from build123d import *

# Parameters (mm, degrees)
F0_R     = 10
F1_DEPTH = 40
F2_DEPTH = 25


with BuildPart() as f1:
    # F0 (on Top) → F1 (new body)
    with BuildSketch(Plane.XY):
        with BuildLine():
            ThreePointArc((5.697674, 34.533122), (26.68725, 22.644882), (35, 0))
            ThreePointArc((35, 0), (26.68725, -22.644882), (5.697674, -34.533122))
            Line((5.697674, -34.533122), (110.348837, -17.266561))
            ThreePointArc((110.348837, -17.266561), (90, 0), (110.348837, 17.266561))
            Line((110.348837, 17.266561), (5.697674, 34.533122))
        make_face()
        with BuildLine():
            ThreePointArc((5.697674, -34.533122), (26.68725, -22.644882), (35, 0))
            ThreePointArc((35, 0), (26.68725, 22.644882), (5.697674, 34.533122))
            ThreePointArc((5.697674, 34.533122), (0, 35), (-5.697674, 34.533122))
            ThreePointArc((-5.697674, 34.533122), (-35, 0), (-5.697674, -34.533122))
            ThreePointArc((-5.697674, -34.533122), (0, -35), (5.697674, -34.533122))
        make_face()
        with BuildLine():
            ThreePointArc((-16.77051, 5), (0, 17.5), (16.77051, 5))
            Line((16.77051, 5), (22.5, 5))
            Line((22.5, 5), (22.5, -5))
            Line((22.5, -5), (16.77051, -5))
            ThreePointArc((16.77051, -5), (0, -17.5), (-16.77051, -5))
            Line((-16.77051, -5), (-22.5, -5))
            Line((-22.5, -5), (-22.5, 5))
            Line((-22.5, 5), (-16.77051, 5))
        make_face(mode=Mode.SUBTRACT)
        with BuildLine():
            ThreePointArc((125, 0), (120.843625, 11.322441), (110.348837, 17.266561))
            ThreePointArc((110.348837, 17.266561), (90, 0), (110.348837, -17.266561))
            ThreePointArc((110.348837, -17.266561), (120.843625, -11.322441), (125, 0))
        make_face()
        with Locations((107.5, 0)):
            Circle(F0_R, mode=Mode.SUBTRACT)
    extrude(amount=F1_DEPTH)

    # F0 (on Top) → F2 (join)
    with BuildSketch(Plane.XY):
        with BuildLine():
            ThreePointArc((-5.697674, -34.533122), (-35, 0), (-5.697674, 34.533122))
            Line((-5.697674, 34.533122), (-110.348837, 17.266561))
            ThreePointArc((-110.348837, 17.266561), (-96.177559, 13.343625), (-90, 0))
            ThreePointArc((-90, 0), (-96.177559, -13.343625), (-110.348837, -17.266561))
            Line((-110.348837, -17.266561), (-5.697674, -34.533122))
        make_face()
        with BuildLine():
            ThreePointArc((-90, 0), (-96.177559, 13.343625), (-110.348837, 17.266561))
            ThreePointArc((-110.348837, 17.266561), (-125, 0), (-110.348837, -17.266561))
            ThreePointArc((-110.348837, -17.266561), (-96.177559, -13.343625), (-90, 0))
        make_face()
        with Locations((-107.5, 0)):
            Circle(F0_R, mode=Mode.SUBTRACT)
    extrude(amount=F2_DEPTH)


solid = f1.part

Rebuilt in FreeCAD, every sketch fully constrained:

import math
import FreeCAD as App
import Part
import Sketcher
from FreeCAD import Vector
Q = App.Units.Quantity

doc = App.newDocument("Part")
params = doc.addObject("Spreadsheet::Sheet", "Params")
for row, (alias, value) in enumerate([
    ("sketch1_diameter", "20 mm"),
    ("sketch1_radius", "35 mm"),
    ("sketch1_radius2", "17.5 mm"),
    ("sketch1_height", "10 mm"),
    ("pad1_length", "40 mm"),
    ("sketch2_diameter", "20 mm"),
    ("sketch2_radius", "35 mm"),
    ("sketch2_radius2", "17.5 mm"),
    ("pad2_length", "25 mm"),
], start=1):
    params.set(f"A{row}", alias)
    params.set(f"B{row}", "=" + value)
    params.setAlias(f"B{row}", alias)

body = doc.addObject("PartDesign::Body", "Body")

sketch1 = body.newObject("Sketcher::SketchObject", "Sketch")
sketch1.AttachmentSupport = (doc.getObject("XY_Plane"), [""])
sketch1.MapMode = "FlatFace"
sketch1.addGeometry([
    Part.LineSegment(Vector(6, -35, 0), Vector(110, -17, 0)),
    Part.ArcOfCircle(Part.Circle(Vector(107, 0, 0), Vector(0, 0, 1), 18), math.radians(-81), math.radians(0)),
    Part.ArcOfCircle(Part.Circle(Vector(107, 0, 0), Vector(0, 0, 1), 18), math.radians(0), math.radians(81)),
    Part.LineSegment(Vector(110, 17, 0), Vector(6, 35, 0)),
    Part.ArcOfCircle(Part.Circle(Vector(0, 0, 0), Vector(0, 0, 1), 35), math.radians(80.63), math.radians(99.37)),
    Part.ArcOfCircle(Part.Circle(Vector(0, 0, 0), Vector(0, 0, 1), 35), math.radians(99), math.radians(261)),
    Part.ArcOfCircle(Part.Circle(Vector(0, 0, 0), Vector(0, 0, 1), 35), math.radians(-99.37), math.radians(-80.63)),
    Part.LineSegment(Vector(-22, 5, 0), Vector(-17, 5, 0)),
    Part.ArcOfCircle(Part.Circle(Vector(0, 0, 0), Vector(0, 0, 1), 18), math.radians(17), math.radians(163)),
    Part.LineSegment(Vector(17, 5, 0), Vector(22, 5, 0)),
    Part.LineSegment(Vector(22, 5, 0), Vector(22, -5, 0)),
    Part.LineSegment(Vector(22, -5, 0), Vector(17, -5, 0)),
    Part.ArcOfCircle(Part.Circle(Vector(0, 0, 0), Vector(0, 0, 1), 18), math.radians(-163), math.radians(-17)),
    Part.LineSegment(Vector(-17, -5, 0), Vector(-22, -5, 0)),
    Part.LineSegment(Vector(-22, -5, 0), Vector(-22, 5, 0)),
    Part.Circle(Vector(108, 0, 0), Vector(0, 0, 1), 10),
], False)
sketch1.addConstraint([
    Sketcher.Constraint("Tangent", 0, 2, 1, 1),
    Sketcher.Constraint("Tangent", 1, 2, 2, 1),
    Sketcher.Constraint("Tangent", 2, 2, 3, 1),
    Sketcher.Constraint("Tangent", 3, 2, 4, 1),
    Sketcher.Constraint("Tangent", 4, 2, 5, 1),
    Sketcher.Constraint("Tangent", 5, 2, 6, 1),
    Sketcher.Constraint("Tangent", 6, 2, 0, 1),
    Sketcher.Constraint("Coincident", 7, 2, 8, 2),
    Sketcher.Constraint("Coincident", 8, 1, 9, 1),
    Sketcher.Constraint("Coincident", 9, 2, 10, 1),
    Sketcher.Constraint("Coincident", 10, 2, 11, 1),
    Sketcher.Constraint("Coincident", 11, 2, 12, 2),
    Sketcher.Constraint("Coincident", 12, 1, 13, 1),
    Sketcher.Constraint("Coincident", 13, 2, 14, 1),
    Sketcher.Constraint("Coincident", 14, 2, 7, 1),
    Sketcher.Constraint("Horizontal", 7),
    Sketcher.Constraint("Horizontal", 9),
    Sketcher.Constraint("Vertical", 10),
    Sketcher.Constraint("Horizontal", 11),
    Sketcher.Constraint("Horizontal", 13),
    Sketcher.Constraint("Vertical", 14),
    Sketcher.Constraint("Coincident", 4, 3, -1, 1),
    Sketcher.Constraint("Coincident", 6, 3, -1, 1),
    Sketcher.Constraint("Coincident", 8, 3, -1, 1),
    Sketcher.Constraint("Coincident", 12, 3, -1, 1),
    Sketcher.Constraint("Coincident", 15, 3, 1, 3),
    Sketcher.Constraint("Equal", 1, 2),
    Sketcher.Constraint("Equal", 2, 8),
    Sketcher.Constraint("Equal", 8, 12),
    Sketcher.Constraint("Symmetric", 9, 2, 13, 2, -1, 1),
    Sketcher.Constraint("PointOnObject", 1, 3, -1),
    Sketcher.Constraint("PointOnObject", 1, 2, -1),
    Sketcher.Constraint("Horizontal", 3, 2, 4, 2),
    Sketcher.Constraint("Horizontal", 5, 2, 6, 2),
    Sketcher.Constraint("Horizontal", 7, 2, 8, 1),
    Sketcher.Constraint("Horizontal", 11, 2, 12, 1),
    Sketcher.Constraint("Diameter", 15, Q("20 mm")),
    Sketcher.Constraint("Radius", 5, Q("35 mm")),
    Sketcher.Constraint("Radius", 1, Q("17.5 mm")),
    Sketcher.Constraint("DistanceY", 10, 2, 10, 1, Q("10 mm")),
    Sketcher.Constraint("DistanceX", -1, 1, 1, 2, Q("125 mm")),
    Sketcher.Constraint("DistanceX", -1, 1, 9, 2, Q("22.5 mm")),
])
sketch1.setExpression("Constraints[36]", "Params.sketch1_diameter")
sketch1.setExpression("Constraints[37]", "Params.sketch1_radius")
sketch1.setExpression("Constraints[38]", "Params.sketch1_radius2")
sketch1.setExpression("Constraints[39]", "Params.sketch1_height")
pad1 = body.newObject("PartDesign::Pad", "Pad")
pad1.Profile = sketch1
pad1.setExpression("Length", "Params.pad1_length")

sketch2 = body.newObject("Sketcher::SketchObject", "Sketch001")
sketch2.AttachmentSupport = (doc.getObject("XY_Plane"), [""])
sketch2.MapMode = "FlatFace"
sketch2.addGeometry([
    Part.ArcOfCircle(Part.Circle(Vector(0, 0, 0), Vector(0, 0, 1), 35), math.radians(99), math.radians(261)),
    Part.LineSegment(Vector(-6, 35, 0), Vector(-110, 17, 0)),
    Part.ArcOfCircle(Part.Circle(Vector(-107, 0, 0), Vector(0, 0, 1), 18), math.radians(99), math.radians(261)),
    Part.LineSegment(Vector(-110, -17, 0), Vector(-6, -35, 0)),
    Part.Circle(Vector(-108, 0, 0), Vector(0, 0, 1), 10),
], False)
sketch2.addConstraint([
    Sketcher.Constraint("Tangent", 0, 1, 1, 1),
    Sketcher.Constraint("Tangent", 1, 2, 2, 1),
    Sketcher.Constraint("Tangent", 2, 2, 3, 1),
    Sketcher.Constraint("Tangent", 3, 2, 0, 2),
    Sketcher.Constraint("Coincident", 0, 3, -1, 1),
    Sketcher.Constraint("Coincident", 4, 3, 2, 3),
    Sketcher.Constraint("PointOnObject", 2, 3, -1),
    Sketcher.Constraint("Diameter", 4, Q("20 mm")),
    Sketcher.Constraint("Radius", 0, Q("35 mm")),
    Sketcher.Constraint("Radius", 2, Q("17.5 mm")),
    Sketcher.Constraint("DistanceX", 2, 3, -1, 1, Q("107.5 mm")),
])
sketch2.setExpression("Constraints[7]", "Params.sketch2_diameter")
sketch2.setExpression("Constraints[8]", "Params.sketch2_radius")
sketch2.setExpression("Constraints[9]", "Params.sketch2_radius2")
pad2 = body.newObject("PartDesign::Pad", "Pad001")
pad2.Profile = sketch2
pad2.setExpression("Length", "Params.pad2_length")

doc.recompute()
